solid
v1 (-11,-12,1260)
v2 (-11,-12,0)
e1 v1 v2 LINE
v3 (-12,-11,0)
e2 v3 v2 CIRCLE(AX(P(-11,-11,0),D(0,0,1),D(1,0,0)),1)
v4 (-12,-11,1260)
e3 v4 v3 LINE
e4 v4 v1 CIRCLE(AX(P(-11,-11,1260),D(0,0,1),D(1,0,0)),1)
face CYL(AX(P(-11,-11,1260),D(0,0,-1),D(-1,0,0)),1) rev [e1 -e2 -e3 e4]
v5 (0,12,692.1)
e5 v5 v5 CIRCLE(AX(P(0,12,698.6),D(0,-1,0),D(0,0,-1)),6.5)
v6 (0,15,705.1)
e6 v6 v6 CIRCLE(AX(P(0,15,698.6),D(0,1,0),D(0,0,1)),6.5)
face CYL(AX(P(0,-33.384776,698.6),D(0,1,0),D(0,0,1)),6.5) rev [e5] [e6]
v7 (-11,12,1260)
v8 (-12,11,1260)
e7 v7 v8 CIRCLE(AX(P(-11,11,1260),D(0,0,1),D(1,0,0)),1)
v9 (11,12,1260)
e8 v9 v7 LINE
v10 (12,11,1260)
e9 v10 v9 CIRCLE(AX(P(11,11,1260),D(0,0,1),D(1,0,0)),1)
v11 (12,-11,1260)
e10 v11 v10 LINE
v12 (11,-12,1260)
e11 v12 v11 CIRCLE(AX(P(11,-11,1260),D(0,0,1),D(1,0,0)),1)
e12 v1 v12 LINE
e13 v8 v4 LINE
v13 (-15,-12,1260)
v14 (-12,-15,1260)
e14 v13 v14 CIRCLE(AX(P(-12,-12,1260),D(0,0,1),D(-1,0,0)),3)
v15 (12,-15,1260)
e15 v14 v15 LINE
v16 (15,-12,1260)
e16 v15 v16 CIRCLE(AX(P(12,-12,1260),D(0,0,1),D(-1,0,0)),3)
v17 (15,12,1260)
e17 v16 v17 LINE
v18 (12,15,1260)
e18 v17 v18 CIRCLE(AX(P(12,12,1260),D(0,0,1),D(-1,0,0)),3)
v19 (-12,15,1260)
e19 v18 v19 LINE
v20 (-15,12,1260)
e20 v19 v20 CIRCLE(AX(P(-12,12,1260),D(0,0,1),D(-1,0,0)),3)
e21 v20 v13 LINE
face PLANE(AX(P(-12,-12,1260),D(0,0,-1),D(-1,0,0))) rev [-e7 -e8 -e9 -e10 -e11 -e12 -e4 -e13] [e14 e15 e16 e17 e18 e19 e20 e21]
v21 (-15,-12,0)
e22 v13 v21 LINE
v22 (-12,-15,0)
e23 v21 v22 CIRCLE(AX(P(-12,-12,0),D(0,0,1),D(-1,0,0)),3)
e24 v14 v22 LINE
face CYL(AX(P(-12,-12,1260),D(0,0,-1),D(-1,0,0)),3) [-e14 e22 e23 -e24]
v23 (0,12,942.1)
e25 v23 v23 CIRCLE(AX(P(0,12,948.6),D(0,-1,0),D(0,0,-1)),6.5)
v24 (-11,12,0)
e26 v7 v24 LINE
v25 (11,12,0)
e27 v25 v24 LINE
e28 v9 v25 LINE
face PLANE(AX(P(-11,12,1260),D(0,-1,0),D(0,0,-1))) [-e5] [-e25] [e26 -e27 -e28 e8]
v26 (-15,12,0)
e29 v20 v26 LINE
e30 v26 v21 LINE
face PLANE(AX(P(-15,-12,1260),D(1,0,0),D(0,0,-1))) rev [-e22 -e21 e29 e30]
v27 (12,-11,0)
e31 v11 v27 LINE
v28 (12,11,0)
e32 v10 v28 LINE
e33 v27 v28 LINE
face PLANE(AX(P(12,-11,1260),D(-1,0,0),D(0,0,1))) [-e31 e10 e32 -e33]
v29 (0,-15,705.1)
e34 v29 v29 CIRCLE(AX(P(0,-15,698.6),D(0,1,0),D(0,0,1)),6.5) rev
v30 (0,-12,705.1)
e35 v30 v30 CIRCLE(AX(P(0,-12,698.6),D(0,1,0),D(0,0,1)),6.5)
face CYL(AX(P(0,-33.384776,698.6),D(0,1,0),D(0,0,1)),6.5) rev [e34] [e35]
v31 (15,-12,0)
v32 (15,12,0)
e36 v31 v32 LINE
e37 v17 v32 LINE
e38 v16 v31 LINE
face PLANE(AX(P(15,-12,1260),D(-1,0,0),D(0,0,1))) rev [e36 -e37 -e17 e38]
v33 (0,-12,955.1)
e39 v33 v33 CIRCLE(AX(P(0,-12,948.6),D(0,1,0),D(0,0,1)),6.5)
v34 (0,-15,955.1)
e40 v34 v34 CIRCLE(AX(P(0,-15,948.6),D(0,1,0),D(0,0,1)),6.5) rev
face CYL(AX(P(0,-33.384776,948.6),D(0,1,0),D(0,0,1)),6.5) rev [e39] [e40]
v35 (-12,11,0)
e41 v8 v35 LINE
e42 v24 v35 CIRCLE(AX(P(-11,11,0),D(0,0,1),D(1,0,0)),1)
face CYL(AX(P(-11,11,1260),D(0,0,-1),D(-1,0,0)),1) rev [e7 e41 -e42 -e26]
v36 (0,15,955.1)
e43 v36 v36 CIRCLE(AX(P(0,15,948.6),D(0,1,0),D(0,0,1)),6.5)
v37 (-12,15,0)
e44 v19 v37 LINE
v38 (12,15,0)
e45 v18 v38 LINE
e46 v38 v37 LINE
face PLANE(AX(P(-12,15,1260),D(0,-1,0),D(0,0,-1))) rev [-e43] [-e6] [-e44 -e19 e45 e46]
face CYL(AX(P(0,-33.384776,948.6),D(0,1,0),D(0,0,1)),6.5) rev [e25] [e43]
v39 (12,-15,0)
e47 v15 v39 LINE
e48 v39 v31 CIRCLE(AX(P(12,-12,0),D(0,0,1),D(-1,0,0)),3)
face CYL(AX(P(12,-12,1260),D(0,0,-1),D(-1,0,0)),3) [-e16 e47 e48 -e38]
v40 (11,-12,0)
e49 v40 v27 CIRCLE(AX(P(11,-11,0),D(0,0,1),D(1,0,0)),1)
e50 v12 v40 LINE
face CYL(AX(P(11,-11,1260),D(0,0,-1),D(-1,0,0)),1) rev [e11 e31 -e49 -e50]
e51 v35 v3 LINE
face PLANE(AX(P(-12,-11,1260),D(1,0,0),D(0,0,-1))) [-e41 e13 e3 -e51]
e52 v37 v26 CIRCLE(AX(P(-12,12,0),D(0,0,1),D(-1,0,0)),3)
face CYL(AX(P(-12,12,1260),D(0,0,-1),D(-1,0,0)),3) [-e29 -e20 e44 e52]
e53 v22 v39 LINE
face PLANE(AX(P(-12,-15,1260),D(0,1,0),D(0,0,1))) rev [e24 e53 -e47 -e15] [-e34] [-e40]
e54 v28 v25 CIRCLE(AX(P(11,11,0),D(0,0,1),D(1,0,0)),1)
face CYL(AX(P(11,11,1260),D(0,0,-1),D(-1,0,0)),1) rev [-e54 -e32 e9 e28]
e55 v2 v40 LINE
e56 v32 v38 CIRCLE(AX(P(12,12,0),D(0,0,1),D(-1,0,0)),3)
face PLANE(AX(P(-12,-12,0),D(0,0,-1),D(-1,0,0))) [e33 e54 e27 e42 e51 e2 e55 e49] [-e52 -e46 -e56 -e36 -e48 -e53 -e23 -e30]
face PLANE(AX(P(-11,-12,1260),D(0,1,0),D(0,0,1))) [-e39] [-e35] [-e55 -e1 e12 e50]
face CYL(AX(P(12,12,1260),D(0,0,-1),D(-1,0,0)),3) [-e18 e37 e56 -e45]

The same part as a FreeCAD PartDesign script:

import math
import FreeCAD as App
import Part
import Sketcher
from FreeCAD import Vector
Q = App.Units.Quantity

doc = App.newDocument("Part")
body = doc.addObject("PartDesign::Body", "Body")

# Sketch on XY plane
sketch1 = body.newObject("Sketcher::SketchObject", "Sketch")
sketch1.AttachmentSupport = (doc.getObject("XY_Plane"), [""])
sketch1.MapMode = "FlatFace"
sketch1.addGeometry(Part.LineSegment(Vector(-12, -15, 0), Vector(12, -15, 0)), False)
sketch1.addGeometry(Part.ArcOfCircle(Part.Circle(Vector(12, -12, 0), Vector(0, 0, 1), 3), math.radians(-90), math.radians(0)), False)
sketch1.addGeometry(Part.LineSegment(Vector(15, -12, 0), Vector(15, 12, 0)), False)
sketch1.addGeometry(Part.ArcOfCircle(Part.Circle(Vector(12, 12, 0), Vector(0, 0, 1), 3), math.radians(0), math.radians(90)), False)
sketch1.addGeometry(Part.LineSegment(Vector(12, 15, 0), Vector(-12, 15, 0)), False)
sketch1.addGeometry(Part.ArcOfCircle(Part.Circle(Vector(-12, 12, 0), Vector(0, 0, 1), 3), math.radians(90), math.radians(180)), False)
sketch1.addGeometry(Part.LineSegment(Vector(-15, 12, 0), Vector(-15, -12, 0)), False)
sketch1.addGeometry(Part.ArcOfCircle(Part.Circle(Vector(-12, -12, 0), Vector(0, 0, 1), 3), math.radians(180), math.radians(270)), False)
sketch1.addGeometry(Part.LineSegment(Vector(11, -12, 0), Vector(-11, -12, 0)), False)
sketch1.addGeometry(Part.ArcOfCircle(Part.Circle(Vector(-11, -11, 0), Vector(0, 0, 1), 1), math.radians(-180), math.radians(-90)), False)
sketch1.addGeometry(Part.LineSegment(Vector(-12, -11, 0), Vector(-12, 11, 0)), False)
sketch1.addGeometry(Part.ArcOfCircle(Part.Circle(Vector(-11, 11, 0), Vector(0, 0, 1), 1), math.radians(90), math.radians(180)), False)
sketch1.addGeometry(Part.LineSegment(Vector(-11, 12, 0), Vector(11, 12, 0)), False)
sketch1.addGeometry(Part.ArcOfCircle(Part.Circle(Vector(11, 11, 0), Vector(0, 0, 1), 1), math.radians(0), math.radians(90)), False)
sketch1.addGeometry(Part.LineSegment(Vector(12, 11, 0), Vector(12, -11, 0)), False)
sketch1.addGeometry(Part.ArcOfCircle(Part.Circle(Vector(11, -11, 0), Vector(0, 0, 1), 1), math.radians(-90), math.radians(0)), False)
sketch1.addConstraint(Sketcher.Constraint("Tangent", 0, 2, 1, 1))
sketch1.addConstraint(Sketcher.Constraint("Tangent", 1, 2, 2, 1))
sketch1.addConstraint(Sketcher.Constraint("Tangent", 2, 2, 3, 1))
sketch1.addConstraint(Sketcher.Constraint("Tangent", 3, 2, 4, 1))
sketch1.addConstraint(Sketcher.Constraint("Tangent", 4, 2, 5, 1))
sketch1.addConstraint(Sketcher.Constraint("Tangent", 5, 2, 6, 1))
sketch1.addConstraint(Sketcher.Constraint("Tangent", 6, 2, 7, 1))
sketch1.addConstraint(Sketcher.Constraint("Tangent", 7, 2, 0, 1))
sketch1.addConstraint(Sketcher.Constraint("Tangent", 8, 2, 9, 2))
sketch1.addConstraint(Sketcher.Constraint("Tangent", 9, 1, 10, 1))
sketch1.addConstraint(Sketcher.Constraint("Tangent", 10, 2, 11, 2))
sketch1.addConstraint(Sketcher.Constraint("Tangent", 11, 1, 12, 1))
sketch1.addConstraint(Sketcher.Constraint("Tangent", 12, 2, 13, 2))
sketch1.addConstraint(Sketcher.Constraint("Tangent", 13, 1, 14, 1))
sketch1.addConstraint(Sketcher.Constraint("Tangent", 14, 2, 15, 2))
sketch1.addConstraint(Sketcher.Constraint("Tangent", 15, 1, 8, 1))
sketch1.addConstraint(Sketcher.Constraint("Horizontal", 0))
sketch1.addConstraint(Sketcher.Constraint("Vertical", 2))
sketch1.addConstraint(Sketcher.Constraint("Horizontal", 4))
sketch1.addConstraint(Sketcher.Constraint("Vertical", 6))
sketch1.addConstraint(Sketcher.Constraint("Horizontal", 8))
sketch1.addConstraint(Sketcher.Constraint("Vertical", 10))
sketch1.addConstraint(Sketcher.Constraint("Horizontal", 12))
sketch1.addConstraint(Sketcher.Constraint("Vertical", 14))
sketch1.addConstraint(Sketcher.Constraint("Equal", 1, 3))
sketch1.addConstraint(Sketcher.Constraint("Equal", 3, 5))
sketch1.addConstraint(Sketcher.Constraint("Equal", 5, 7))
sketch1.addConstraint(Sketcher.Constraint("Equal", 9, 11))
sketch1.addConstraint(Sketcher.Constraint("Equal", 11, 13))
sketch1.addConstraint(Sketcher.Constraint("Equal", 13, 15))
sketch1.addConstraint(Sketcher.Constraint("Symmetric", 1, 3, 5, 3, -1, 1))
sketch1.addConstraint(Sketcher.Constraint("Symmetric", 9, 3, 13, 3, -1, 1))
sketch1.addConstraint(Sketcher.Constraint("Horizontal", 6, 2, 8, 2))
sketch1.addConstraint(Sketcher.Constraint("Vertical", 7, 2, 9, 1))
sketch1.addConstraint(Sketcher.Constraint("Equal", 4, 2))
sketch1.addConstraint(Sketcher.Constraint("Radius", 1, Q("3 mm")))
sketch1.addConstraint(Sketcher.Constraint("Radius", 9, Q("1 mm")))
sketch1.addConstraint(Sketcher.Constraint("DistanceX", 0, 1, 0, 2, Q("24 mm")))
pad1 = body.newObject("PartDesign::Pad", "Pad")
pad1.Profile = sketch1
pad1.Length = 1260

# Sketch on XZ plane
sketch2 = body.newObject("Sketcher::SketchObject", "Sketch001")
sketch2.AttachmentSupport = (doc.getObject("XZ_Plane"), [""])
sketch2.MapMode = "FlatFace"
sketch2.AttachmentOffset = App.Placement(Vector(0, 0, -15), App.Rotation())
sketch2.addGeometry(Part.Circle(Vector(0, 949, 0), Vector(0, 0, 1), 6), False)
sketch2.addGeometry(Part.Circle(Vector(0, 699, 0), Vector(0, 0, 1), 6), False)
sketch2.addConstraint(Sketcher.Constraint("Equal", 0, 1))
sketch2.addConstraint(Sketcher.Constraint("PointOnObject", 0, 3, -2))
sketch2.addConstraint(Sketcher.Constraint("PointOnObject", 1, 3, -2))
sketch2.addConstraint(Sketcher.Constraint("Diameter", 0, Q("13 mm")))
sketch2.addConstraint(Sketcher.Constraint("DistanceY", 1, 3, 0, 3, Q("250 mm")))
sketch2.addConstraint(Sketcher.Constraint("DistanceY", -1, 1, 0, 3, Q("948.6 mm")))
pocket1 = body.newObject("PartDesign::Pocket", "Pocket")
pocket1.Profile = sketch2
pocket1.Length = 30
pocket1.Reversed = True

doc.recompute()
